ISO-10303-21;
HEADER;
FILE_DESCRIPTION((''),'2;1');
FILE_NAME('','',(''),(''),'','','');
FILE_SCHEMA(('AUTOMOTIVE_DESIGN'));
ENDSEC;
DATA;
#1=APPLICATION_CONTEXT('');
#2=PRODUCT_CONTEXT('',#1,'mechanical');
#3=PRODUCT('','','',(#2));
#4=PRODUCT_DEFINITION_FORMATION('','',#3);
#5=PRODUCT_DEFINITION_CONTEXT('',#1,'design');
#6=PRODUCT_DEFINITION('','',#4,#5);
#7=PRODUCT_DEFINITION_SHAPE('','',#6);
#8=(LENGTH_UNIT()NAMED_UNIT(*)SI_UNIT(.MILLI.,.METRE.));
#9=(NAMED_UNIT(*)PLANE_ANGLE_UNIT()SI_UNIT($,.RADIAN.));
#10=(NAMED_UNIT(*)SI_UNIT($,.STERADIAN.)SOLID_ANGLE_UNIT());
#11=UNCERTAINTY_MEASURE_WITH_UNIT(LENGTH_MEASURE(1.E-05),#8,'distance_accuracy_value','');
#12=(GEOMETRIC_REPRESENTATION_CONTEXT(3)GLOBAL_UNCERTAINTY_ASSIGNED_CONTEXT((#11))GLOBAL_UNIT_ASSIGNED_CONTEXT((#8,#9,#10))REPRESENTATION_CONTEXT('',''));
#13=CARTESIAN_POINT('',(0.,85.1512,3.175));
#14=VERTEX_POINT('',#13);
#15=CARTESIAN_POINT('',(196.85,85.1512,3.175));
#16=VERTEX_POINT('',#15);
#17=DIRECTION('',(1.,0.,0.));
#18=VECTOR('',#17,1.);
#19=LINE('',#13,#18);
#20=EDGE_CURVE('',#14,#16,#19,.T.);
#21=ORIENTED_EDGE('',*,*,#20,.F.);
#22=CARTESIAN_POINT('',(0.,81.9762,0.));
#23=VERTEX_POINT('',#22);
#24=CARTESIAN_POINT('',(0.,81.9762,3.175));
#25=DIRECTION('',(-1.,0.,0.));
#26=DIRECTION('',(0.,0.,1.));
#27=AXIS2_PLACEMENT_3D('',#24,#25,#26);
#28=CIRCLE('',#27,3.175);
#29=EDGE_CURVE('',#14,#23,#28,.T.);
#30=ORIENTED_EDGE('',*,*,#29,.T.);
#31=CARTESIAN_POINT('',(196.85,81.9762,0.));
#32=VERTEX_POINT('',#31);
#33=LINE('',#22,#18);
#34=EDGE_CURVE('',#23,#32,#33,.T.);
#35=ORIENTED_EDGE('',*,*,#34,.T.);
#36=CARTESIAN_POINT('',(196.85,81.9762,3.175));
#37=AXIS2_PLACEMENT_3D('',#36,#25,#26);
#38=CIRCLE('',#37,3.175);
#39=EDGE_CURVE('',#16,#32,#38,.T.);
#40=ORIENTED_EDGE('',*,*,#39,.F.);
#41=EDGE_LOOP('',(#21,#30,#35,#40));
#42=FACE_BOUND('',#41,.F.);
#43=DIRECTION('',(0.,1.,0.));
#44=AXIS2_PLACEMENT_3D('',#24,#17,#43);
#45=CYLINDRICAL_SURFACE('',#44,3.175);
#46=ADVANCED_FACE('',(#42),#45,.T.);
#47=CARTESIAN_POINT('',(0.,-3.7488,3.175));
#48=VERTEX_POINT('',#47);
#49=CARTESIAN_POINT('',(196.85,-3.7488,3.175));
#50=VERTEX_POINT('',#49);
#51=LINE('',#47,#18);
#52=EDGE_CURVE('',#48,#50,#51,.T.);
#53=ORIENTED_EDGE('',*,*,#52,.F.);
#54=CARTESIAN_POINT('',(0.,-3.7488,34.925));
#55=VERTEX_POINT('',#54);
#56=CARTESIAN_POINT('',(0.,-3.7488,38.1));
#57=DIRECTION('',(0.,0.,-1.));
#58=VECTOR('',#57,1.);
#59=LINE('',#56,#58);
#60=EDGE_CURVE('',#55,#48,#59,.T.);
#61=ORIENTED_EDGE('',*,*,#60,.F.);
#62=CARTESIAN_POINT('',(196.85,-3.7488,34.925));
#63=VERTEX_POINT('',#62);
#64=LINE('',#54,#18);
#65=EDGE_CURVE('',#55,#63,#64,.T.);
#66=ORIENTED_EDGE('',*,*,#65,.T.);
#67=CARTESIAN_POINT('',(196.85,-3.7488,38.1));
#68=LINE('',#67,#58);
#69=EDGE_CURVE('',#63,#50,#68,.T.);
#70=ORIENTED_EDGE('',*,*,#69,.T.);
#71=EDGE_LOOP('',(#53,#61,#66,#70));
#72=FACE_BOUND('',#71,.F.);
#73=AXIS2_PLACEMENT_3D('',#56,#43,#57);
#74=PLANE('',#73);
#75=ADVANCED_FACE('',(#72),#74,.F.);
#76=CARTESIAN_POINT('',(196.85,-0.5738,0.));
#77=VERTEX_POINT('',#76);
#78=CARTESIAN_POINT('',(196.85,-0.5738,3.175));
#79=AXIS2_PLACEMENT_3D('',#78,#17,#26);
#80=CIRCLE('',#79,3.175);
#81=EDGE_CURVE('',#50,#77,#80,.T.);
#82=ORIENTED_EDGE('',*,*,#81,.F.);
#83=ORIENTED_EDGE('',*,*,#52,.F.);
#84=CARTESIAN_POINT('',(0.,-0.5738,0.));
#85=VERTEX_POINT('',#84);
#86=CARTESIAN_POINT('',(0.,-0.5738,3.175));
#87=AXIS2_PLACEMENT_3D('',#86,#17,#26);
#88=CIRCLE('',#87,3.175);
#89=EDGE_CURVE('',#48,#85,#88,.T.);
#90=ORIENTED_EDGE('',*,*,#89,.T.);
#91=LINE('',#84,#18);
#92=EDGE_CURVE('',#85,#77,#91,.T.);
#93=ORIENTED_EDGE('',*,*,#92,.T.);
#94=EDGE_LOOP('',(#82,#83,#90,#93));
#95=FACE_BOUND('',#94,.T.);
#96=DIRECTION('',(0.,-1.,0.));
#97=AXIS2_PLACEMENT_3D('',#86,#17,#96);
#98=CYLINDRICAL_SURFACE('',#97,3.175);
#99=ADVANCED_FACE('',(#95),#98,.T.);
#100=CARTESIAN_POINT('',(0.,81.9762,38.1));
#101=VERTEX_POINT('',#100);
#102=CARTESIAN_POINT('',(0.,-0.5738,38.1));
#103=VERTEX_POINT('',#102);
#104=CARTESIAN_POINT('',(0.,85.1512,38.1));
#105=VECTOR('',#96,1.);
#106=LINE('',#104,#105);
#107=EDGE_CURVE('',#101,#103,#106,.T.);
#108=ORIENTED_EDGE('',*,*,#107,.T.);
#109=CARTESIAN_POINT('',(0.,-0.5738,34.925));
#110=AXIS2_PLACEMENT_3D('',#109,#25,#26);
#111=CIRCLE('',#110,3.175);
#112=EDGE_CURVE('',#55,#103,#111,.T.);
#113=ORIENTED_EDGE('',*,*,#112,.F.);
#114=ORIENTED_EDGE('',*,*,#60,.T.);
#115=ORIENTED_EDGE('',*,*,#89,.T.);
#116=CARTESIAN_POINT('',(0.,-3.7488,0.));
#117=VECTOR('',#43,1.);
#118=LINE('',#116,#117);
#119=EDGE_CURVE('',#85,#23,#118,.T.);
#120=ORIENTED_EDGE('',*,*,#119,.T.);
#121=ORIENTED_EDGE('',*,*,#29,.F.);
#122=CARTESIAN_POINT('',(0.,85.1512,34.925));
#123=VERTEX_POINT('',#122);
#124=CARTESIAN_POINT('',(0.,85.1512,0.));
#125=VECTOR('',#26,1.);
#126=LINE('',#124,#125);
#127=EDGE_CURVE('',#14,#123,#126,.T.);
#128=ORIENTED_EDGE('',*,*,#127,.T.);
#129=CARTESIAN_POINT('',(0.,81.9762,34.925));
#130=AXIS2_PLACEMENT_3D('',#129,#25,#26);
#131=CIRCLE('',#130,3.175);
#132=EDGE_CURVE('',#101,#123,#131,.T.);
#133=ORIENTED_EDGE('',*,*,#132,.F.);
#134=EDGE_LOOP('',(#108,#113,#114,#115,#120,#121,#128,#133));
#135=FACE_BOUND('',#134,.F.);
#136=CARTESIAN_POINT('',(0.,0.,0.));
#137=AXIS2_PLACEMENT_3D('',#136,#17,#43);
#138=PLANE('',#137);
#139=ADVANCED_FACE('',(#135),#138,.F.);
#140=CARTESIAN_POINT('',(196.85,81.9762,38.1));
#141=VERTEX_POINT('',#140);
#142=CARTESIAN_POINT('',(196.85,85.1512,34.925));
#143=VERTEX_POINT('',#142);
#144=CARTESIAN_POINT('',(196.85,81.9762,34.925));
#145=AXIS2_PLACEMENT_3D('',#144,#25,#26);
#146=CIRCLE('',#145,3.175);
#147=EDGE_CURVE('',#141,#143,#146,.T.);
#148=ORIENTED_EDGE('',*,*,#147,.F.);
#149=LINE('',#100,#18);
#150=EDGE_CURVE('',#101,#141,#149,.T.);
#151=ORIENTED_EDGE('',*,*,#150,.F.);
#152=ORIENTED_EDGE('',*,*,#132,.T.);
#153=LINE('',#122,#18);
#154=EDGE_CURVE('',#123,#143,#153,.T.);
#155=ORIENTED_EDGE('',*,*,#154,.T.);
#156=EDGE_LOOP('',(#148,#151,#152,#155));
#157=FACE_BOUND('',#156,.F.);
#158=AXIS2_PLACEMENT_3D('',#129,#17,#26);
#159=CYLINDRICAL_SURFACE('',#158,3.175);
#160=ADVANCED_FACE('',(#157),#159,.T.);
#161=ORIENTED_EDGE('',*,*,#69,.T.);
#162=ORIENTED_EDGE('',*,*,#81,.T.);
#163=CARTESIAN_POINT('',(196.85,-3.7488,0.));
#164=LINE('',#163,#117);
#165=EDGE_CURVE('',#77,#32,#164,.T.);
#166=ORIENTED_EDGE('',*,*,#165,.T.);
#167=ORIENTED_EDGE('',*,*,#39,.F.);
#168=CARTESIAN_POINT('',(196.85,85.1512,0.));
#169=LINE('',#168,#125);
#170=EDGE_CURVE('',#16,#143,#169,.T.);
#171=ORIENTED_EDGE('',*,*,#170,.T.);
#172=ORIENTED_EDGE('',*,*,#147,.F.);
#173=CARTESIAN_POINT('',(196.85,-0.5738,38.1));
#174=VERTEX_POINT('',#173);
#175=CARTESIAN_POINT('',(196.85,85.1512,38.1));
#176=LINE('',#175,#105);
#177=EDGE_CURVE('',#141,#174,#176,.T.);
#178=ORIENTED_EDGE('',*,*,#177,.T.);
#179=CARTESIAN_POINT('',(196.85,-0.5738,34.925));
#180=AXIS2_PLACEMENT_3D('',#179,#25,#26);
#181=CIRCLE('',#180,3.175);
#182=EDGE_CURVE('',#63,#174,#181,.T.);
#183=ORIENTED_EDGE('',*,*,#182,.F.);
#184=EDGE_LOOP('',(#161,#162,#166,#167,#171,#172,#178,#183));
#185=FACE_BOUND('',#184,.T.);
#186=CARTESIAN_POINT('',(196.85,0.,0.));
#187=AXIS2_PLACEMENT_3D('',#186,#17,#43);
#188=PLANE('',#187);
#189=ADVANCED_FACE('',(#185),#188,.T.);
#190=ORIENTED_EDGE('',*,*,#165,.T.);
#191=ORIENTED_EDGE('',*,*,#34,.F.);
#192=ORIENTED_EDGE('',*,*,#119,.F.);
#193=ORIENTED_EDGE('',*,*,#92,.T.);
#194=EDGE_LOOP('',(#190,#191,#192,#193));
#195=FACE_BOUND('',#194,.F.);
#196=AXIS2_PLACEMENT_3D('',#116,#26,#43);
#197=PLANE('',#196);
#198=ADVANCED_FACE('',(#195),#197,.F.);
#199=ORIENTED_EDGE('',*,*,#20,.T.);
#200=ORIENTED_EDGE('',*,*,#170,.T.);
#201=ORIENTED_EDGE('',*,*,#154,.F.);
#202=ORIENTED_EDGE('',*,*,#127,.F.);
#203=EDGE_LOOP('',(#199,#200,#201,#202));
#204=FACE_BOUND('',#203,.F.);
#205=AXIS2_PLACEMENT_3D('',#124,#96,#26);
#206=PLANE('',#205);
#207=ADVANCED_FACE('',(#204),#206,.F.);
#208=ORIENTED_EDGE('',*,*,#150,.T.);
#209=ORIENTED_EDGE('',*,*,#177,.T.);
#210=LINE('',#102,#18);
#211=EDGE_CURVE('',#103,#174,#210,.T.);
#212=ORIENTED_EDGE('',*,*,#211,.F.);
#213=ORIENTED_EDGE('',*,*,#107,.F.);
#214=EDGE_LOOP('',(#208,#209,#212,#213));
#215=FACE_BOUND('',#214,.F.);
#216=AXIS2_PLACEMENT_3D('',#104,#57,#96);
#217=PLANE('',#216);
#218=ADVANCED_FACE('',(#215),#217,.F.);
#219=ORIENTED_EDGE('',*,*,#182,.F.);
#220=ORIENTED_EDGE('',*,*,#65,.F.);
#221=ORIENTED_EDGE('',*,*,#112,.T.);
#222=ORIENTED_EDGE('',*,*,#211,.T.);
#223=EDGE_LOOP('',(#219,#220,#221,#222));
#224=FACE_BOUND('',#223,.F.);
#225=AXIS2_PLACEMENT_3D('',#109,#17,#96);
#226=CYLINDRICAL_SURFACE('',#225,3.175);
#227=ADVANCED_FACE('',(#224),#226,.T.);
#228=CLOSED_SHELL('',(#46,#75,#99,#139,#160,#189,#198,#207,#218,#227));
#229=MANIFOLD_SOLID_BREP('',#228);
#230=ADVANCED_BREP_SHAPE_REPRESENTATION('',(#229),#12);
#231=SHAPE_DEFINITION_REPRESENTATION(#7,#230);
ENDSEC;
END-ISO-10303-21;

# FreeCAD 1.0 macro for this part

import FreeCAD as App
import Part
import Sketcher

V = App.Vector
Q = App.Units.Quantity


def edges_at(feature, points):
    """Names of the edges that pass closest to the given points."""
    edges = feature.Shape.Edges
    near = lambda p: min(range(len(edges)), key=lambda i: edges[i].distToShape(Part.Vertex(*p))[0])
    return sorted({f"Edge{near(p) + 1}" for p in points})

doc = App.newDocument("Part")
body = doc.addObject("PartDesign::Body", "Body")

# Sketch on YZ plane
sketch1 = doc.addObject("Sketcher::SketchObject", "Sketch")
body.addObject(sketch1)
sketch1.AttachmentSupport = (doc.YZ_Plane, [""])
sketch1.MapMode = "FlatFace"
sketch1.addGeometry([
    Part.LineSegment(V(-3.7488, 38.1, 0), V(-3.7488, 0, 0)),
    Part.LineSegment(V(-3.7488, 0, 0), V(85.1512, 0, 0)),
    Part.LineSegment(V(85.1512, 0, 0), V(85.1512, 38.1, 0)),
    Part.LineSegment(V(85.1512, 38.1, 0), V(-3.7488, 38.1, 0)),
], False)
sketch1.addConstraint([
    Sketcher.Constraint("Coincident", 0, 2, 1, 1),
    Sketcher.Constraint("Coincident", 1, 2, 2, 1),
    Sketcher.Constraint("Coincident", 2, 2, 3, 1),
    Sketcher.Constraint("Coincident", 3, 2, 0, 1),
    Sketcher.Constraint("Vertical", 0),
    Sketcher.Constraint("Horizontal", 1),
    Sketcher.Constraint("Vertical", 2),
    Sketcher.Constraint("Horizontal", 3),
    Sketcher.Constraint("PointOnObject", 0, 2, -1),
    Sketcher.Constraint("DistanceX", 1, 1, 1, 2, Q("3.5 in")),
    Sketcher.Constraint("DistanceY", 0, 2, 0, 1, Q("1.5 in")),
    Sketcher.Constraint("DistanceX", 0, 2, -1, 1, Q("0.1476 in")),
])
pad1 = doc.addObject("PartDesign::Pad", "Pad")
body.addObject(pad1)
pad1.Profile = sketch1
pad1.Length = Q("7.75 in")
doc.recompute()

fillet = doc.addObject("PartDesign::Fillet", "Fillet")
body.addObject(fillet)
fillet.Base = (pad1, edges_at(pad1, [
    (98.425, 85.151, 38.1),
    (98.425, 85.151, 0),
    (98.425, -3.749, 0),
    (98.425, -3.749, 38.1),
]))
fillet.Radius = Q("0.125 in")

doc.recompute()
